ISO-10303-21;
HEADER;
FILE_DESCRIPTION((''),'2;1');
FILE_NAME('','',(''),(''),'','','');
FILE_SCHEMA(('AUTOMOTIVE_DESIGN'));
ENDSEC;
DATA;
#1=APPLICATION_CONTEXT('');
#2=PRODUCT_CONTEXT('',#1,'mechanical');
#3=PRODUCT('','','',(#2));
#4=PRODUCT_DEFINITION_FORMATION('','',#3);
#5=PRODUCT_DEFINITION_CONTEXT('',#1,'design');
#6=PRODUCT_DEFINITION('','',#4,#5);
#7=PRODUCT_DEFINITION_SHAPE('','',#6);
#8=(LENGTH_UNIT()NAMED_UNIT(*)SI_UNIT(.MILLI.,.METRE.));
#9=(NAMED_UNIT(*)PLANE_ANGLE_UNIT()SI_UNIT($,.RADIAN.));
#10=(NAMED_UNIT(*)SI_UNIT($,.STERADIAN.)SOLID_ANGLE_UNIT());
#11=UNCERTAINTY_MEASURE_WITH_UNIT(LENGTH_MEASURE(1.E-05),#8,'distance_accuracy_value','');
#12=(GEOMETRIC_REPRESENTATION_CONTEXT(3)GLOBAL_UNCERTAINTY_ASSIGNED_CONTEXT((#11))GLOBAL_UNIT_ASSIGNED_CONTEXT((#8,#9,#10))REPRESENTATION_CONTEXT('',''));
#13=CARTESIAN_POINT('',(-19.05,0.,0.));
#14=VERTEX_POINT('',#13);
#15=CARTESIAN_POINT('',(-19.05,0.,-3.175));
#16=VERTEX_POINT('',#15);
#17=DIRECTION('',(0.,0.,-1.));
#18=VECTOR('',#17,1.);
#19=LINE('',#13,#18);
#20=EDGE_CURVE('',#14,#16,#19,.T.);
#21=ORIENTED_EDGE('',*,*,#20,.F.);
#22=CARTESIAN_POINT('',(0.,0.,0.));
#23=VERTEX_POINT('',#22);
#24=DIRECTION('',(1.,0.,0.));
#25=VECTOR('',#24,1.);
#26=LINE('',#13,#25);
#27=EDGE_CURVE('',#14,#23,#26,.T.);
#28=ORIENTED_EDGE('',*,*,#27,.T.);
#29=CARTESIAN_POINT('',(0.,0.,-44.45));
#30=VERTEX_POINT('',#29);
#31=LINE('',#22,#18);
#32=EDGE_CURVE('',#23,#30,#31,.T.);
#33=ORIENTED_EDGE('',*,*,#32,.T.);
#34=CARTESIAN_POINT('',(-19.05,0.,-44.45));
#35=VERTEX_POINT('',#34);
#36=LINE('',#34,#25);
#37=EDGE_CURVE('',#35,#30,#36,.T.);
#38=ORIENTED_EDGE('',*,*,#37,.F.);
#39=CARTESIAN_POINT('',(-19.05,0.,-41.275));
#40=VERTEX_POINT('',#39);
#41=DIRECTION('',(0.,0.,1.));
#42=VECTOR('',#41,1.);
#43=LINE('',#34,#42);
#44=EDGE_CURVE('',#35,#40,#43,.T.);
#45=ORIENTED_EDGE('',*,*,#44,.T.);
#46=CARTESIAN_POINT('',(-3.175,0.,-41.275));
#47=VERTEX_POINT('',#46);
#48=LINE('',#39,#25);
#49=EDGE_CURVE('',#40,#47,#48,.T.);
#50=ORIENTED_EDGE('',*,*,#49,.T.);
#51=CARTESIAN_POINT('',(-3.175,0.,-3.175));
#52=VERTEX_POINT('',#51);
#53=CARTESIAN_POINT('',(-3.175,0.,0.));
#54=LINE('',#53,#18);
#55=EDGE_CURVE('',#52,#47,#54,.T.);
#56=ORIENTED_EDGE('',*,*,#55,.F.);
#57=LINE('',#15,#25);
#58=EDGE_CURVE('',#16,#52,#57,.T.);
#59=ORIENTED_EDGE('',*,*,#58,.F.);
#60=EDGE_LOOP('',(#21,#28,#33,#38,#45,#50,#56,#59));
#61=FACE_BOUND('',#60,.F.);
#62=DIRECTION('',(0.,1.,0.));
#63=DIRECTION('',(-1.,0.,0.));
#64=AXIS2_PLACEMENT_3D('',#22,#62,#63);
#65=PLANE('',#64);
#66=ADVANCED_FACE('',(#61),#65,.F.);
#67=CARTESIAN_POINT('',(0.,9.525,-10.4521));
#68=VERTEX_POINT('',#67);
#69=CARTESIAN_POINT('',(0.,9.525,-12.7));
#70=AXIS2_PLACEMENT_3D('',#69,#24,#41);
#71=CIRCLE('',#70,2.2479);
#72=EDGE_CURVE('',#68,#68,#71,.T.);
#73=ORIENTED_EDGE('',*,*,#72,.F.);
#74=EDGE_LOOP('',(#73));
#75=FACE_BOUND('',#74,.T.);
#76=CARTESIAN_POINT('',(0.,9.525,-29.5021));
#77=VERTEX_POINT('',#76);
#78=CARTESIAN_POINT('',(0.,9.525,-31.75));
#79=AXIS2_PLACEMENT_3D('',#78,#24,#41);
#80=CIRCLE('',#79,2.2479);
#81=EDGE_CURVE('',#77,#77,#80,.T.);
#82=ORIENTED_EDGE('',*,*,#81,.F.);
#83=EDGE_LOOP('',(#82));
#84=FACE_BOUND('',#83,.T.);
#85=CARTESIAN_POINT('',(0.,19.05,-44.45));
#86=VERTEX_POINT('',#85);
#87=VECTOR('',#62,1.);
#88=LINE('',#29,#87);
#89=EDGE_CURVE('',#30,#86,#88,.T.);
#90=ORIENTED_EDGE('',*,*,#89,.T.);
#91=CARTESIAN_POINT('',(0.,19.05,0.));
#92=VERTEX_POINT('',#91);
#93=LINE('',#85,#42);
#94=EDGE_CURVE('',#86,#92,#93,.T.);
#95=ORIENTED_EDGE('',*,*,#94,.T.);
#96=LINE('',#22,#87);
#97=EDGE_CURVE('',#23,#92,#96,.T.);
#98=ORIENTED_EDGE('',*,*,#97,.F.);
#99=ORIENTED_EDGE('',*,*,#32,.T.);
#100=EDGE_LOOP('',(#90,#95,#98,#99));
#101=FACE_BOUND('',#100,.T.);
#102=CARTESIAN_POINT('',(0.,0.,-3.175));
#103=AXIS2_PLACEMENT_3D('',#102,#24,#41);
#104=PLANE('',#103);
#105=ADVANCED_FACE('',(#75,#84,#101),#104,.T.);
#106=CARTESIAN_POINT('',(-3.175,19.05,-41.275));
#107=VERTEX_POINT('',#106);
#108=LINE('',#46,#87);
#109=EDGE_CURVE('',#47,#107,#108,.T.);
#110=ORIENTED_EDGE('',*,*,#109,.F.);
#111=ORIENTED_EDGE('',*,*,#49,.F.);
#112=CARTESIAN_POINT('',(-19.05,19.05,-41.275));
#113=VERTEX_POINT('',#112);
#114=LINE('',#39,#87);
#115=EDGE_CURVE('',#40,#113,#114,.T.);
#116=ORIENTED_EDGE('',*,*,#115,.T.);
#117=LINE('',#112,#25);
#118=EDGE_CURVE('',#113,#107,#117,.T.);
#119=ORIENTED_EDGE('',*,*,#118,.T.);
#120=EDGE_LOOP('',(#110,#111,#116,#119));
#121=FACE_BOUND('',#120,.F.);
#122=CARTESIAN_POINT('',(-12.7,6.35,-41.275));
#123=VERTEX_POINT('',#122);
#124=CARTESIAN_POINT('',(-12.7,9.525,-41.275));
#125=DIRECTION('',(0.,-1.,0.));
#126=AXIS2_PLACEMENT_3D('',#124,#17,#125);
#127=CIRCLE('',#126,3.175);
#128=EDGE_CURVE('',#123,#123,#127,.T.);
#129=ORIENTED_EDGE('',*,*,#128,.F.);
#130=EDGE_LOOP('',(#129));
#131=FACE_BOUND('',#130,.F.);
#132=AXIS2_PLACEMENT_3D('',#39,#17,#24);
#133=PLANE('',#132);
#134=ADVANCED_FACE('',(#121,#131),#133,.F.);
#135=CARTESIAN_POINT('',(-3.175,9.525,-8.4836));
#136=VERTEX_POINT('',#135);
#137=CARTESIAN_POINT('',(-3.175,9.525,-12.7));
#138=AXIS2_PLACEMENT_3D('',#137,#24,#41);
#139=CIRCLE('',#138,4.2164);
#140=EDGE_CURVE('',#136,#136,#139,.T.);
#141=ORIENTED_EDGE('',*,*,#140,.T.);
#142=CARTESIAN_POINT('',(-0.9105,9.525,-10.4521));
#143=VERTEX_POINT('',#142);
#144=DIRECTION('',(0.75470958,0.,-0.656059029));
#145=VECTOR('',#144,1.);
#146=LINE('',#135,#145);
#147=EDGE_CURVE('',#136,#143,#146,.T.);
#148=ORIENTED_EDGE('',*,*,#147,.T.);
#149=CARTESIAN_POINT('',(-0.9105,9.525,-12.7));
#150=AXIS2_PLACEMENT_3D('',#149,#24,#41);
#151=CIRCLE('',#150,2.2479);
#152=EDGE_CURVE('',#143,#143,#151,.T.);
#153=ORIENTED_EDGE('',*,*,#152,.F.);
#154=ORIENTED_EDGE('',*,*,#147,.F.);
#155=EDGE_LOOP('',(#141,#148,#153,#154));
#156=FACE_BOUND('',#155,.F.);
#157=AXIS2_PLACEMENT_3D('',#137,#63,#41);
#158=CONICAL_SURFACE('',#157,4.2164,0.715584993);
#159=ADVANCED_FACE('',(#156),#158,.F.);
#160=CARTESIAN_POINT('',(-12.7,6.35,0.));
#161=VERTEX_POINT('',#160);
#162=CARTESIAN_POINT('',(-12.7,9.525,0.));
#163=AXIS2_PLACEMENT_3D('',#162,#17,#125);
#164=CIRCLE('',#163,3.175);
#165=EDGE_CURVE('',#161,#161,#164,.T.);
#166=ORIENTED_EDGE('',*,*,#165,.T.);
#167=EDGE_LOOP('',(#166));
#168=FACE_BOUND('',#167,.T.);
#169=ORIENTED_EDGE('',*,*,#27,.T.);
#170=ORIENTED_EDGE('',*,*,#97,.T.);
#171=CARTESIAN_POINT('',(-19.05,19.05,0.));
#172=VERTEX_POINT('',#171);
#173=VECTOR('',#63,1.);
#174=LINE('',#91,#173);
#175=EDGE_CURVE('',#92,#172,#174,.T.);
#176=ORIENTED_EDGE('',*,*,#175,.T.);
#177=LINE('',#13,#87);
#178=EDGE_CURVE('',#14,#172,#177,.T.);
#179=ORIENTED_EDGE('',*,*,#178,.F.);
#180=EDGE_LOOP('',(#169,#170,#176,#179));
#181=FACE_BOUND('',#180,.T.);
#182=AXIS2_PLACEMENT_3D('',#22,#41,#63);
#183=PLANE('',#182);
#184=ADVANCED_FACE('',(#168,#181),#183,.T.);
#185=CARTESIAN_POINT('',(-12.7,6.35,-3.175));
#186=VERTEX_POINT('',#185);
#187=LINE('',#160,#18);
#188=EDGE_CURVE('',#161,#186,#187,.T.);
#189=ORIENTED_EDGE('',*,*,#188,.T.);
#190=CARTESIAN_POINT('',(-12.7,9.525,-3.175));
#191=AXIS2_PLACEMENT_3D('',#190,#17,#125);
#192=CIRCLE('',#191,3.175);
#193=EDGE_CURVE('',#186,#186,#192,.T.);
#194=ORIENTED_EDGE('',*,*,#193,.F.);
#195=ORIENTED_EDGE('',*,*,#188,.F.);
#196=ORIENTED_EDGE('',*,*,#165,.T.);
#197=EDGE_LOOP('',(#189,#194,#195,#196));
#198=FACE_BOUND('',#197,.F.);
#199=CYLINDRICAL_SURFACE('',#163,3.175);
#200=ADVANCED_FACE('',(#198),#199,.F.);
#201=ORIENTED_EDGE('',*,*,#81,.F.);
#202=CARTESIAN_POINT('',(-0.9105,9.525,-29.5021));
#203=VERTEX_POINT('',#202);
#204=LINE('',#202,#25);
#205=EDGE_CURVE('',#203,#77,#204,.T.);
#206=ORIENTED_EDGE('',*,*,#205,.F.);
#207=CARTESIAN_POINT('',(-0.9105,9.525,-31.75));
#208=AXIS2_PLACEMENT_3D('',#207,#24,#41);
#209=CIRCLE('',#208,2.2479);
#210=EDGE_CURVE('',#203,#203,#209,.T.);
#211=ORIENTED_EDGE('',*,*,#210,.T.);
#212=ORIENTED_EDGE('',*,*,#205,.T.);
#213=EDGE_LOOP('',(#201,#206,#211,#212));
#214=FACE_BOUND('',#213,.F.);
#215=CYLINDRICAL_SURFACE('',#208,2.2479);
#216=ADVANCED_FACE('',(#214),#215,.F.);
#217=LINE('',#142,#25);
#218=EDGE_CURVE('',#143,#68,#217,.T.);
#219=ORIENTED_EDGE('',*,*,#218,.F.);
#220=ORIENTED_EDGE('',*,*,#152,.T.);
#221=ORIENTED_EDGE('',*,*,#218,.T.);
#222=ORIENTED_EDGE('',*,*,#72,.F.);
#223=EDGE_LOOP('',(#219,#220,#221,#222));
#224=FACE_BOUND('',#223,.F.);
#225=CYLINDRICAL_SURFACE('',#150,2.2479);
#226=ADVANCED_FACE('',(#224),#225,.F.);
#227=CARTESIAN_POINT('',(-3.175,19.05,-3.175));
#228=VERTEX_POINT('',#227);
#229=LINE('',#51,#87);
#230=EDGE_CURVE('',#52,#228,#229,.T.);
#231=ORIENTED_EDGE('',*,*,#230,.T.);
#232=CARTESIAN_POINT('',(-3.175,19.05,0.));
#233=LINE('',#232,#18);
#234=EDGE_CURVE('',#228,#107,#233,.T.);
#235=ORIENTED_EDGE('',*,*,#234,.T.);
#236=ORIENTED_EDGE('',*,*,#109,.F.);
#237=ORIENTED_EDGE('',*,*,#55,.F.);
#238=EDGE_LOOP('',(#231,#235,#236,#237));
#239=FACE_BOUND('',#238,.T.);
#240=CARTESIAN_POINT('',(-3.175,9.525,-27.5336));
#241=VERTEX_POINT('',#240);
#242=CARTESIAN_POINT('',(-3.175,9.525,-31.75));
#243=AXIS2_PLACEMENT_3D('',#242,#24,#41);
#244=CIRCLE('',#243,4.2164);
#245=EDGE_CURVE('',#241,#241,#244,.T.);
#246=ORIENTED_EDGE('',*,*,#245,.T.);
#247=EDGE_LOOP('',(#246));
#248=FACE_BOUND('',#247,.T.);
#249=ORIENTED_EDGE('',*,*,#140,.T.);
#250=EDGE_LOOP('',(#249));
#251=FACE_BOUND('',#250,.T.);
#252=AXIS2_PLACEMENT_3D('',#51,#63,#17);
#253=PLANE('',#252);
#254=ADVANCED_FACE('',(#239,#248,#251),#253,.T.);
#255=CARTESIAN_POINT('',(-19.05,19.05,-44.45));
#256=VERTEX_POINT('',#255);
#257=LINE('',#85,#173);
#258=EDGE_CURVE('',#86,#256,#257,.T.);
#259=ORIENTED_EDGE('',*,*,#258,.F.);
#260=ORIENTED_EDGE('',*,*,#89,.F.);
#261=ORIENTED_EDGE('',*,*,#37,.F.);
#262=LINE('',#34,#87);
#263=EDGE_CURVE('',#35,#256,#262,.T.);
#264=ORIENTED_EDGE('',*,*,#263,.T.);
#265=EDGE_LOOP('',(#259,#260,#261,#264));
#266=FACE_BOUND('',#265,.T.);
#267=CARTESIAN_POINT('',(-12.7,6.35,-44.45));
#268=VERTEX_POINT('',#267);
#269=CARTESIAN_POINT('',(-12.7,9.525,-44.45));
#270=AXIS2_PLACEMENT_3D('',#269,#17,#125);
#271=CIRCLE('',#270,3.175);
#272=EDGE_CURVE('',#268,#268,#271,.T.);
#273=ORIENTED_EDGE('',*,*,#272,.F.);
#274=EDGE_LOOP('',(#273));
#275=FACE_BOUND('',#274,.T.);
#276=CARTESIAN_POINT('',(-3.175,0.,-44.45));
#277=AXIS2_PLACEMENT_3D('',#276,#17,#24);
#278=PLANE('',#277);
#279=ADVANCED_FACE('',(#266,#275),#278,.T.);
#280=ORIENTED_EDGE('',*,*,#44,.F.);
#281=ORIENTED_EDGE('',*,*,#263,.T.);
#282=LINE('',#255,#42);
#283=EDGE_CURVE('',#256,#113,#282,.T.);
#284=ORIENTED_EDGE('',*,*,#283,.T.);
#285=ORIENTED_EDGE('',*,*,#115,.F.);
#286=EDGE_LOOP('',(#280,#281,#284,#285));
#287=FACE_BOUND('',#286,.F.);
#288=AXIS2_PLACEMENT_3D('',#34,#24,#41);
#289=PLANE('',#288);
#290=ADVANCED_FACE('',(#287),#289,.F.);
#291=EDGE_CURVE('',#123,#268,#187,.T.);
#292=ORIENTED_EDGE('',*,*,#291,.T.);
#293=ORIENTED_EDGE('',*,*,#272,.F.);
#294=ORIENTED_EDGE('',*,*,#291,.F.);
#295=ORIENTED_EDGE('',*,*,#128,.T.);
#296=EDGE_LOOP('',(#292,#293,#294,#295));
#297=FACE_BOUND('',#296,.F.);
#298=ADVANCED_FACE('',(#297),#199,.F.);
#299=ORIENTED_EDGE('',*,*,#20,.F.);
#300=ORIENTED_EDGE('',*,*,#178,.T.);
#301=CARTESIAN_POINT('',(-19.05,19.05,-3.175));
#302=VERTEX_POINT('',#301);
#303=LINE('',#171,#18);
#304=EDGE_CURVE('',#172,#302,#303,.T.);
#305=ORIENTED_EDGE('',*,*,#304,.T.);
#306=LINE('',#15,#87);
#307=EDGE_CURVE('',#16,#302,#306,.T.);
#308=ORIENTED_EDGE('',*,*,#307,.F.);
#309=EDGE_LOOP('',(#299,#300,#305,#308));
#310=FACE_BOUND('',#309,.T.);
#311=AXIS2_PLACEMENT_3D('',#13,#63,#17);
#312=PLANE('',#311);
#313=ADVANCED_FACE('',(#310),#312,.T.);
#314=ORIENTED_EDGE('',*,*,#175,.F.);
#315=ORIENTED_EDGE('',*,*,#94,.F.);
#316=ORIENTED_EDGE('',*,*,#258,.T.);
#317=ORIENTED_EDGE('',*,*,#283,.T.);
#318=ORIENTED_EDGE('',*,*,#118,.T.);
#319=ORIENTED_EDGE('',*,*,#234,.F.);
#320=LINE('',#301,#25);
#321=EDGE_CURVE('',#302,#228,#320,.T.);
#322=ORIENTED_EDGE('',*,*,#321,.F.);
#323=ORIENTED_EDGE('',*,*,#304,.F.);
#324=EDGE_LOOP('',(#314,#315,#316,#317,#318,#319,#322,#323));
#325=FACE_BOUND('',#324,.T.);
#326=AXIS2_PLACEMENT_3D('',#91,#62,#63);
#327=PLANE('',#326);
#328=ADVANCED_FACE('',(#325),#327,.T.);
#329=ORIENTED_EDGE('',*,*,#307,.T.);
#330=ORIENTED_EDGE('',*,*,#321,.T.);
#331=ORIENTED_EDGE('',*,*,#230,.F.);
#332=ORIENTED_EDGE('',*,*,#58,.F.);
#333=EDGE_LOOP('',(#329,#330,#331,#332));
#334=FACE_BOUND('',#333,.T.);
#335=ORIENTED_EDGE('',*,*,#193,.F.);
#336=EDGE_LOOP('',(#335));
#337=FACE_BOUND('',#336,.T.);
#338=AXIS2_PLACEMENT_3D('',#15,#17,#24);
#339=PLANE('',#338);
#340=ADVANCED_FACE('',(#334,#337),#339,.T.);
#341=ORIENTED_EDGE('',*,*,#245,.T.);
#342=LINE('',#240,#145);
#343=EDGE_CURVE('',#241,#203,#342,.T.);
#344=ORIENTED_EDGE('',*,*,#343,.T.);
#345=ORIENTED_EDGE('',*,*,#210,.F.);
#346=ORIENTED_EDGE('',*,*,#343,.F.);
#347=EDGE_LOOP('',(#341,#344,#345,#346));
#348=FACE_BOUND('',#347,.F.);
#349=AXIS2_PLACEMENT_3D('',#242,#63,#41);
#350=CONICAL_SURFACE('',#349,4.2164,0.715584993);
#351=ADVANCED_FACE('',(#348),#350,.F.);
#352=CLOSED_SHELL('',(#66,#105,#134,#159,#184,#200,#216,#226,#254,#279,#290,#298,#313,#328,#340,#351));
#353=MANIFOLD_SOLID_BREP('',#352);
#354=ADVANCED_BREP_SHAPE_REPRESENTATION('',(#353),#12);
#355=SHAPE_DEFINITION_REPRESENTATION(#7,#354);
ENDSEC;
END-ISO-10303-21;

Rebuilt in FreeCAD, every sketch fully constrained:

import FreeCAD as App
import Part
import Sketcher
from FreeCAD import Vector
Q = App.Units.Quantity

doc = App.newDocument("Part")
body = doc.addObject("PartDesign::Body", "Body")

# Sketch on XZ plane
sketch1 = doc.addObject("Sketcher::SketchObject", "Sketch")
body.addObject(sketch1)
sketch1.AttachmentSupport = (doc.XZ_Plane, [""])
sketch1.MapMode = "FlatFace"
sketch1.addGeometry([
    Part.LineSegment(Vector(0, 0, 0), Vector(0, -44.45, 0)),  # 0
    Part.LineSegment(Vector(0, -44.45, 0), Vector(-19.05, -44.45, 0)),  # 1
    Part.LineSegment(Vector(-19.05, -44.45, 0), Vector(-19.05, -41.275, 0)),  # 2
    Part.LineSegment(Vector(-19.05, -41.275, 0), Vector(-3.175, -41.275, 0)),  # 3
    Part.LineSegment(Vector(-3.175, -41.275, 0), Vector(-3.175, -3.175, 0)),  # 4
    Part.LineSegment(Vector(-3.175, -3.175, 0), Vector(-19.05, -3.175, 0)),  # 5
    Part.LineSegment(Vector(-19.05, -3.175, 0), Vector(-19.05, 0, 0)),  # 6
    Part.LineSegment(Vector(-19.05, 0, 0), Vector(0, 0, 0)),  # 7
], False)
sketch1.addConstraint([
    Sketcher.Constraint("Coincident", 0, 2, 1, 1),
    Sketcher.Constraint("Coincident", 1, 2, 2, 1),
    Sketcher.Constraint("Coincident", 2, 2, 3, 1),
    Sketcher.Constraint("Coincident", 3, 2, 4, 1),
    Sketcher.Constraint("Coincident", 4, 2, 5, 1),
    Sketcher.Constraint("Coincident", 5, 2, 6, 1),
    Sketcher.Constraint("Coincident", 6, 2, 7, 1),
    Sketcher.Constraint("Coincident", 7, 2, 0, 1),
    Sketcher.Constraint("Vertical", 0),
    Sketcher.Constraint("Horizontal", 1),
    Sketcher.Constraint("Vertical", 2),
    Sketcher.Constraint("Horizontal", 3),
    Sketcher.Constraint("Vertical", 4),
    Sketcher.Constraint("Horizontal", 5),
    Sketcher.Constraint("Vertical", 6),
    Sketcher.Constraint("Horizontal", 7),
    Sketcher.Constraint("Coincident", 7, 2, -1, 1),
    Sketcher.Constraint("Vertical", 2, 2, 5, 2),
    Sketcher.Constraint("Equal", 2, 6),
    Sketcher.Constraint("DistanceX", 1, 2, 1, 1, Q("0.75 in")),
    Sketcher.Constraint("DistanceY", 0, 2, 0, 1, Q("1.75 in")),
    Sketcher.Constraint("DistanceY", 2, 1, 2, 2, Q("0.125 in")),
    Sketcher.Constraint("DistanceX", 3, 2, -1, 1, Q("0.125 in")),
])
pad1 = doc.addObject("PartDesign::Pad", "Pad")
body.addObject(pad1)
pad1.Profile = sketch1
pad1.Length = Q("0.75 in")
pad1.Reversed = True

# Sketch on XY plane
sketch2 = doc.addObject("Sketcher::SketchObject", "Sketch001")
body.addObject(sketch2)
sketch2.AttachmentSupport = (doc.XY_Plane, [""])
sketch2.MapMode = "FlatFace"
sketch2.addGeometry(Part.Circle(Vector(-12.7, 9.525, 0), Vector(0, 0, 1), 3.175), False)
sketch2.addConstraint([
    Sketcher.Constraint("Diameter", 0, Q("0.25 in")),
    Sketcher.Constraint("DistanceX", 0, 3, -1, 1, Q("0.5 in")),
    Sketcher.Constraint("DistanceY", -1, 1, 0, 3, Q("0.375 in")),
])
doc.recompute()
hole = doc.addObject("PartDesign::Hole", "Hole")
body.addObject(hole)
hole.Profile = sketch2
hole.ThreadType = "None"
hole.Diameter = Q("0.25 in")
hole.DepthType = "ThroughAll"

# Sketch on YZ plane
sketch3 = doc.addObject("Sketcher::SketchObject", "Sketch002")
body.addObject(sketch3)
sketch3.AttachmentSupport = (doc.YZ_Plane, [""])
sketch3.MapMode = "FlatFace"
sketch3.AttachmentOffset = App.Placement(Vector(0, 0, -0.125 * 25.4), App.Rotation())
sketch3.addGeometry([
    Part.Circle(Vector(9.525, -31.75, 0), Vector(0, 0, 1), 2.2479),
    Part.Circle(Vector(9.525, -12.7, 0), Vector(0, 0, 1), 2.2479),
], False)
sketch3.addConstraint([
    Sketcher.Constraint("Equal", 0, 1),
    Sketcher.Constraint("Vertical", 0, 3, 1, 3),
    Sketcher.Constraint("Diameter", 0, Q("0.177 in")),
    Sketcher.Constraint("DistanceY", 1, 3, -1, 1, Q("0.5 in")),
    Sketcher.Constraint("DistanceY", 0, 3, -1, 1, Q("1.25 in")),
    Sketcher.Constraint("DistanceX", -1, 1, 0, 3, Q("0.375 in")),
])
doc.recompute()
hole2 = doc.addObject("PartDesign::Hole", "Hole001")
body.addObject(hole2)
hole2.Profile = sketch3
hole2.ThreadType = "None"
hole2.Diameter = Q("0.177 in")
hole2.DepthType = "ThroughAll"
hole2.HoleCutType = "Countersink"
hole2.HoleCutDiameter = Q("0.332 in")
hole2.HoleCutCountersinkAngle = 82
hole2.Reversed = True

doc.recompute()
